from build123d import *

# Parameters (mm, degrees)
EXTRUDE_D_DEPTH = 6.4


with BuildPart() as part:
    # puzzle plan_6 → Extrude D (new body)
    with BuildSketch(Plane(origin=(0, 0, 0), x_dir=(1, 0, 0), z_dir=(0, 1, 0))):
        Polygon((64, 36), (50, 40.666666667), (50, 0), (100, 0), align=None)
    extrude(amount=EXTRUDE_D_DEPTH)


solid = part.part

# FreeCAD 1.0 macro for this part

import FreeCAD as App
import Part
import Sketcher

V = App.Vector
Q = App.Units.Quantity

doc = App.newDocument("Part")
body = doc.addObject("PartDesign::Body", "Body")

sketch1 = body.newObject("Sketcher::SketchObject", "Sketch")
sketch1.AttachmentSupport = (doc.getObject("XZ_Plane"), [""])
sketch1.MapMode = "FlatFace"
sketch1.addGeometry([
    Part.LineSegment(V(64, -36, 0), V(50, -40.666667, 0)),
    Part.LineSegment(V(50, -40.666667, 0), V(50, 0, 0)),
    Part.LineSegment(V(50, 0, 0), V(100, 0, 0)),
    Part.LineSegment(V(100, 0, 0), V(64, -36, 0)),
], False)
sketch1.addConstraint([
    Sketcher.Constraint("Coincident", 0, 2, 1, 1),
    Sketcher.Constraint("Coincident", 1, 2, 2, 1),
    Sketcher.Constraint("Coincident", 2, 2, 3, 1),
    Sketcher.Constraint("Coincident", 3, 2, 0, 1),
    Sketcher.Constraint("Vertical", 1),
    Sketcher.Constraint("Horizontal", 2),
    Sketcher.Constraint("PointOnObject", 1, 2, -1),
    Sketcher.Constraint("DistanceX", 2, 1, 2, 2, 50.0),
    Sketcher.Constraint("Angle", 3, Q("-135 deg")),
    Sketcher.Constraint("DistanceX", -1, 1, 0, 2, 50.0),
    Sketcher.Constraint("DistanceX", -1, 1, 3, 2, 64.0),
    Sketcher.Constraint("DistanceY", 1, 1, 1, 2, 40.666667),
])
pad1 = body.newObject("PartDesign::Pad", "Pad")
pad1.Profile = sketch1
pad1.Length = 6.4
pad1.Reversed = True

doc.recompute()
